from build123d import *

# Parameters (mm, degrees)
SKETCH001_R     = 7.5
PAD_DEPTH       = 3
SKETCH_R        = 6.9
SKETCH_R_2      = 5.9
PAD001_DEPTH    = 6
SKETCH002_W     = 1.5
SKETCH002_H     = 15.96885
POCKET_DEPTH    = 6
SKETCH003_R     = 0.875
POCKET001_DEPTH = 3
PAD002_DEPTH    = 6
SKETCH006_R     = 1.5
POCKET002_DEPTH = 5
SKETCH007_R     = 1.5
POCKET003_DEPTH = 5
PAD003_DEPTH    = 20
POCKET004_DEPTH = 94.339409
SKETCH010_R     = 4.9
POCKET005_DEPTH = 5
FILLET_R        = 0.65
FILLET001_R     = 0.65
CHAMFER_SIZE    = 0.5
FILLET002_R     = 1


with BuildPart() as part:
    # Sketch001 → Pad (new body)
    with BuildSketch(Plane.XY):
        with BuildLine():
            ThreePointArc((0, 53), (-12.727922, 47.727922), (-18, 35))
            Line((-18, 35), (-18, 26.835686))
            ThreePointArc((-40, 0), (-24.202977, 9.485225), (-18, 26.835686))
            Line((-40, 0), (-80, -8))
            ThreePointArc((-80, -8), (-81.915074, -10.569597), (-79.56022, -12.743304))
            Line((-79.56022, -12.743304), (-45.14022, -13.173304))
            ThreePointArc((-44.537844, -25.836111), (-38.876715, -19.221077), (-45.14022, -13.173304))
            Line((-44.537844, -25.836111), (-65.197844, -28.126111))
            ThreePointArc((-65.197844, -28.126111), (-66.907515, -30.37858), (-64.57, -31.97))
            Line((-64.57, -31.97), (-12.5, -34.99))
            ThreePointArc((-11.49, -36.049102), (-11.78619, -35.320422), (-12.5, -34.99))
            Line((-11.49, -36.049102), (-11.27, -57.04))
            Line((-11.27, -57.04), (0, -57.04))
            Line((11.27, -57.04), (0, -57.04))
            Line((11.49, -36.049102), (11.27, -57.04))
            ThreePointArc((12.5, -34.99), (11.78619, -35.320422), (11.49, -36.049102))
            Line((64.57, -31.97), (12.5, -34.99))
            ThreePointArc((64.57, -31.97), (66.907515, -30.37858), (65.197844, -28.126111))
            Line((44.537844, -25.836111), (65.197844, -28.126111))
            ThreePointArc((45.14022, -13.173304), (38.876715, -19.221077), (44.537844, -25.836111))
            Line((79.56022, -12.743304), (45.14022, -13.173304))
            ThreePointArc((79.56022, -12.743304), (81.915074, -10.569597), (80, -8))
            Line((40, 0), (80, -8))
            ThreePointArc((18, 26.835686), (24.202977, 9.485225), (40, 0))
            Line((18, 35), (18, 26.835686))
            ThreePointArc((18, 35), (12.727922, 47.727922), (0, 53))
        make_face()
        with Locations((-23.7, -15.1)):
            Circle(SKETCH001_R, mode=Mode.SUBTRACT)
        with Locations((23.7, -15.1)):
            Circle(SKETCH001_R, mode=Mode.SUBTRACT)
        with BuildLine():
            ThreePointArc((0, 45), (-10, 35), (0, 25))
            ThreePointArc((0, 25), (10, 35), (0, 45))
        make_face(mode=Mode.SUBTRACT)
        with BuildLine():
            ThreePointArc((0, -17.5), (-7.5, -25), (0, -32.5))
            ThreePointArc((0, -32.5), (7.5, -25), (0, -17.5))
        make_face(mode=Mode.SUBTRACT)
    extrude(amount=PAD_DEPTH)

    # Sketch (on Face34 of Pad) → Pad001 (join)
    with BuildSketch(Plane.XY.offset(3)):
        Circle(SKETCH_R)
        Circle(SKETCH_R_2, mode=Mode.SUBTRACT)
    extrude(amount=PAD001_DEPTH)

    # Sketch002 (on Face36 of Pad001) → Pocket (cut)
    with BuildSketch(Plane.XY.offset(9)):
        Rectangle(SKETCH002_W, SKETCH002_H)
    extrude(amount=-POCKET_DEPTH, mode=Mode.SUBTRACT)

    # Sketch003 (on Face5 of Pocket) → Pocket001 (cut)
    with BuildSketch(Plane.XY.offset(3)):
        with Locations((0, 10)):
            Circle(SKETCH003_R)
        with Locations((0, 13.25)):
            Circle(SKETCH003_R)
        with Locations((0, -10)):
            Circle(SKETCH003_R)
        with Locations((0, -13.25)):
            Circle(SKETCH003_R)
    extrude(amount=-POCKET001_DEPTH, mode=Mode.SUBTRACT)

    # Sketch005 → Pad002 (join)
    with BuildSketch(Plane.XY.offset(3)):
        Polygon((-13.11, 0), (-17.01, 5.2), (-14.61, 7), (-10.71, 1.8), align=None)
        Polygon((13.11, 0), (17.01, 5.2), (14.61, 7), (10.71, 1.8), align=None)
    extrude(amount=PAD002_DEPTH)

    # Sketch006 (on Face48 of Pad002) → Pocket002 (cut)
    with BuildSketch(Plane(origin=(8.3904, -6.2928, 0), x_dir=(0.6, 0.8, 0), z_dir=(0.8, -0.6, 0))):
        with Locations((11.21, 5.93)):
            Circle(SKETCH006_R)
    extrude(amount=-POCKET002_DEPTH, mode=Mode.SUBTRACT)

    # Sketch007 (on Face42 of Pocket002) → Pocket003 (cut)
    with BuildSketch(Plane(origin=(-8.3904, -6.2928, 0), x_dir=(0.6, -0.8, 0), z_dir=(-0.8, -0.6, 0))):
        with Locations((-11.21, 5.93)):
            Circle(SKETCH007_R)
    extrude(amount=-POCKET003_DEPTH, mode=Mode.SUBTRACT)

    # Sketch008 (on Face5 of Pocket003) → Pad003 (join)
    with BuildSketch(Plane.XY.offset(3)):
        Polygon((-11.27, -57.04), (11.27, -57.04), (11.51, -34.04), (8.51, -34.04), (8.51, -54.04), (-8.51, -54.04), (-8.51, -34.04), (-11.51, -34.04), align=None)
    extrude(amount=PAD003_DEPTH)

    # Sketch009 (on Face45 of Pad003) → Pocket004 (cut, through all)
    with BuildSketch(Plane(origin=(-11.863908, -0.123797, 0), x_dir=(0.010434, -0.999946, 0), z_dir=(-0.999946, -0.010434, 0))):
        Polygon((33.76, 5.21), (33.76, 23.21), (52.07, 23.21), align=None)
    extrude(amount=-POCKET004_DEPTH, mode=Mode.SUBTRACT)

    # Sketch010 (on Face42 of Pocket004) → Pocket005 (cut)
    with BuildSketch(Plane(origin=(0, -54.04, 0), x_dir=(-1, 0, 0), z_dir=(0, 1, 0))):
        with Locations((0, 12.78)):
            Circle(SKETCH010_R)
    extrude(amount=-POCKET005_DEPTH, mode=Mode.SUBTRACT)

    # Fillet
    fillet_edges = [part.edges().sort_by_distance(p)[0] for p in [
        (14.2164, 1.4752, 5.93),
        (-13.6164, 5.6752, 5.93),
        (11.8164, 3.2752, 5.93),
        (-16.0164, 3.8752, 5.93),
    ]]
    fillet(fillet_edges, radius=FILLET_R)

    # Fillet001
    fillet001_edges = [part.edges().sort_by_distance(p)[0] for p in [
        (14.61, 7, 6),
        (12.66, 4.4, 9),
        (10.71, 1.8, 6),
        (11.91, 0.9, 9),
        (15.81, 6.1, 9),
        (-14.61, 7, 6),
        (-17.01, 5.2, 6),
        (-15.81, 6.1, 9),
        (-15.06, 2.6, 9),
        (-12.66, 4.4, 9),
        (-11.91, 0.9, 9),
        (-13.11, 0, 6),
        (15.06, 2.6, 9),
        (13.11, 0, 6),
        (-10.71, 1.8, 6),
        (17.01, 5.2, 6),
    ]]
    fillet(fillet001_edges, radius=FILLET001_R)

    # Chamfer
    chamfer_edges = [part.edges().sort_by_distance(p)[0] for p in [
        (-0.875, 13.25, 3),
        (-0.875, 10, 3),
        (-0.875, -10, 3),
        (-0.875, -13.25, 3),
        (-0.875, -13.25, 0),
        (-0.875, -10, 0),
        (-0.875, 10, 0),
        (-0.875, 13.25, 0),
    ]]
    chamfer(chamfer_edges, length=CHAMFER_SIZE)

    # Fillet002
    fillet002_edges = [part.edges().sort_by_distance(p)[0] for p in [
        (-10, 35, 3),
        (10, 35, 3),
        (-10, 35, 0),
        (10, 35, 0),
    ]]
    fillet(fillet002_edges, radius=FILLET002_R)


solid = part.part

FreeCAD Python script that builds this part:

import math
import FreeCAD as App
import Part
import Sketcher

V = App.Vector
Q = App.Units.Quantity


def edges_at(feature, points):
    """Names of the edges that pass closest to the given points."""
    edges = feature.Shape.Edges
    near = lambda p: min(range(len(edges)), key=lambda i: edges[i].distToShape(Part.Vertex(*p))[0])
    return sorted({f"Edge{near(p) + 1}" for p in points})


def add_polygon(sketch, points):
    """Adds a closed chain of lines whose ends are joined by coincident constraints."""
    first, n = sketch.GeometryCount, len(points)
    for a, b in zip(points, points[1:] + points[:1]):
        sketch.addGeometry(Part.LineSegment(App.Vector(*a, 0), App.Vector(*b, 0)), False)
    for i in range(n):
        sketch.addConstraint(Sketcher.Constraint("Coincident", first + i, 2, first + (i + 1) % n, 1))

doc = App.newDocument("Part")
body = doc.addObject("PartDesign::Body", "Body")

# Sketch on XY plane
sketch1 = body.newObject("Sketcher::SketchObject", "Sketch")
sketch1.AttachmentSupport = (doc.getObject("XY_Plane"), [""])
sketch1.MapMode = "FlatFace"
sketch1.addGeometry(Part.ArcOfCircle(Part.Circle(V(0, 35, 0), V(0, 0, 1), 18), math.radians(90), math.radians(180)), False)
sketch1.addGeometry(Part.LineSegment(V(-18, 35, 0), V(-18, 26.8, 0)), False)
sketch1.addGeometry(Part.ArcOfCircle(Part.Circle(V(-45.4, 26.8, 0), V(0, 0, 1), 27.4), math.radians(-79), math.radians(0)), False)
sketch1.addGeometry(Part.LineSegment(V(-40, 0, 0), V(-80, -8, 0)), False)
sketch1.addGeometry(Part.ArcOfCircle(Part.Circle(V(-79.5, -10.3, 0), V(0, 0, 1), 2.4), math.radians(101), math.radians(269)), False)
sketch1.addGeometry(Part.LineSegment(V(-79.6, -12.7, 0), V(-45.1, -13.2, 0)), False)
sketch1.addGeometry(Part.ArcOfCircle(Part.Circle(V(-45.2, -19.5, 0), V(0, 0, 1), 6.4), math.radians(-84), math.radians(89)), False)
sketch1.addGeometry(Part.LineSegment(V(-44.5, -25.8, 0), V(-65.2, -28.1, 0)), False)
sketch1.addGeometry(Part.ArcOfCircle(Part.Circle(V(-65, -30.1, 0), V(0, 0, 1), 1.9), math.radians(96), math.radians(282)), False)
sketch1.addGeometry(Part.LineSegment(V(-64.6, -32, 0), V(-12.5, -35, 0)), False)
sketch1.addGeometry(Part.ArcOfCircle(Part.Circle(V(-12.6, -36.1, 0), V(0, 0, 1), 1.1), math.radians(1), math.radians(87)), False)
sketch1.addGeometry(Part.LineSegment(V(-11.5, -36, 0), V(-11.3, -57, 0)), False)
sketch1.addGeometry(Part.LineSegment(V(-11.3, -57, 0), V(11.3, -57, 0)), False)
sketch1.addGeometry(Part.LineSegment(V(11.3, -57, 0), V(11.5, -36, 0)), False)
sketch1.addGeometry(Part.ArcOfCircle(Part.Circle(V(12.6, -36.1, 0), V(0, 0, 1), 1.1), math.radians(93), math.radians(179)), False)
sketch1.addGeometry(Part.LineSegment(V(12.5, -35, 0), V(64.6, -32, 0)), False)
sketch1.addGeometry(Part.ArcOfCircle(Part.Circle(V(65, -30.1, 0), V(0, 0, 1), 1.9), math.radians(-102), math.radians(84)), False)
sketch1.addGeometry(Part.LineSegment(V(65.2, -28.1, 0), V(44.5, -25.8, 0)), False)
sketch1.addGeometry(Part.ArcOfCircle(Part.Circle(V(45.2, -19.5, 0), V(0, 0, 1), 6.4), math.radians(91), math.radians(264)), False)
sketch1.addGeometry(Part.LineSegment(V(45.1, -13.2, 0), V(79.6, -12.7, 0)), False)
sketch1.addGeometry(Part.ArcOfCircle(Part.Circle(V(79.5, -10.3, 0), V(0, 0, 1), 2.4), math.radians(-89), math.radians(79)), False)
sketch1.addGeometry(Part.LineSegment(V(80, -8, 0), V(40, 0, 0)), False)
sketch1.addGeometry(Part.ArcOfCircle(Part.Circle(V(45.4, 26.8, 0), V(0, 0, 1), 27.4), math.radians(-180), math.radians(-101)), False)
sketch1.addGeometry(Part.LineSegment(V(18, 26.8, 0), V(18, 35, 0)), False)
sketch1.addGeometry(Part.ArcOfCircle(Part.Circle(V(0, 35, 0), V(0, 0, 1), 18), math.radians(0), math.radians(90)), False)
sketch1.addGeometry(Part.Circle(V(-23.7, -15.1, 0), V(0, 0, 1), 7.5), False)
sketch1.addGeometry(Part.Circle(V(0, -25, 0), V(0, 0, 1), 7.5), False)
sketch1.addGeometry(Part.Circle(V(23.7, -15.1, 0), V(0, 0, 1), 7.5), False)
sketch1.addGeometry(Part.Circle(V(0, 35, 0), V(0, 0, 1), 10), False)
sketch1.addConstraint(Sketcher.Constraint("Tangent", 0, 2, 1, 1))
sketch1.addConstraint(Sketcher.Constraint("Tangent", 1, 2, 2, 2))
sketch1.addConstraint(Sketcher.Constraint("Tangent", 2, 1, 3, 1))
sketch1.addConstraint(Sketcher.Constraint("Tangent", 3, 2, 4, 1))
sketch1.addConstraint(Sketcher.Constraint("Tangent", 4, 2, 5, 1))
sketch1.addConstraint(Sketcher.Constraint("Tangent", 5, 2, 6, 2))
sketch1.addConstraint(Sketcher.Constraint("Coincident", 6, 1, 7, 1))
sketch1.addConstraint(Sketcher.Constraint("Tangent", 7, 2, 8, 1))
sketch1.addConstraint(Sketcher.Constraint("Coincident", 8, 2, 9, 1))
sketch1.addConstraint(Sketcher.Constraint("Tangent", 9, 2, 10, 2))
sketch1.addConstraint(Sketcher.Constraint("Tangent", 10, 1, 11, 1))
sketch1.addConstraint(Sketcher.Constraint("Coincident", 11, 2, 12, 1))
sketch1.addConstraint(Sketcher.Constraint("Coincident", 12, 2, 13, 1))
sketch1.addConstraint(Sketcher.Constraint("Tangent", 13, 2, 14, 2))
sketch1.addConstraint(Sketcher.Constraint("Tangent", 14, 1, 15, 1))
sketch1.addConstraint(Sketcher.Constraint("Coincident", 15, 2, 16, 1))
sketch1.addConstraint(Sketcher.Constraint("Tangent", 16, 2, 17, 1))
sketch1.addConstraint(Sketcher.Constraint("Coincident", 17, 2, 18, 2))
sketch1.addConstraint(Sketcher.Constraint("Tangent", 18, 1, 19, 1))
sketch1.addConstraint(Sketcher.Constraint("Tangent", 19, 2, 20, 1))
sketch1.addConstraint(Sketcher.Constraint("Tangent", 20, 2, 21, 1))
sketch1.addConstraint(Sketcher.Constraint("Tangent", 21, 2, 22, 2))
sketch1.addConstraint(Sketcher.Constraint("Tangent", 22, 1, 23, 1))
sketch1.addConstraint(Sketcher.Constraint("Tangent", 23, 2, 24, 1))
sketch1.addConstraint(Sketcher.Constraint("Tangent", 24, 2, 0, 1))
sketch1.addConstraint(Sketcher.Constraint("Vertical", 1))
sketch1.addConstraint(Sketcher.Constraint("Horizontal", 12))
sketch1.addConstraint(Sketcher.Constraint("Vertical", 23))
sketch1.addConstraint(Sketcher.Constraint("Coincident", 28, 3, 0, 3))
sketch1.addConstraint(Sketcher.Constraint("Equal", 10, 14))
sketch1.addConstraint(Sketcher.Constraint("Equal", 8, 16))
sketch1.addConstraint(Sketcher.Constraint("Equal", 6, 18))
sketch1.addConstraint(Sketcher.Constraint("Equal", 4, 20))
sketch1.addConstraint(Sketcher.Constraint("Equal", 2, 22))
sketch1.addConstraint(Sketcher.Constraint("Equal", 0, 24))
sketch1.addConstraint(Sketcher.Constraint("Equal", 25, 26))
sketch1.addConstraint(Sketcher.Constraint("Equal", 26, 27))
sketch1.addConstraint(Sketcher.Constraint("Symmetric", 2, 1, 21, 2, -1, 1))
sketch1.addConstraint(Sketcher.Constraint("Symmetric", 10, 3, 14, 3, -2))
sketch1.addConstraint(Sketcher.Constraint("Symmetric", 8, 3, 16, 3, -2))
sketch1.addConstraint(Sketcher.Constraint("Symmetric", 6, 3, 18, 3, -2))
sketch1.addConstraint(Sketcher.Constraint("Symmetric", 4, 3, 20, 3, -2))
sketch1.addConstraint(Sketcher.Constraint("Symmetric", 25, 3, 27, 3, -2))
sketch1.addConstraint(Sketcher.Constraint("PointOnObject", 0, 3, -2))
sketch1.addConstraint(Sketcher.Constraint("PointOnObject", 26, 3, -2))
sketch1.addConstraint(Sketcher.Constraint("PointOnObject", 24, 2, -2))
sketch1.addConstraint(Sketcher.Constraint("Horizontal", 10, 1, 13, 2))
sketch1.addConstraint(Sketcher.Constraint("Horizontal", 8, 2, 15, 2))
sketch1.addConstraint(Sketcher.Constraint("Horizontal", 6, 1, 17, 2))
sketch1.addConstraint(Sketcher.Constraint("Diameter", 25, Q("15 mm")))
sketch1.addConstraint(Sketcher.Constraint("Diameter", 28, Q("20 mm")))
sketch1.addConstraint(Sketcher.Constraint("Radius", 0, Q("18 mm")))
sketch1.addConstraint(Sketcher.Constraint("Radius", 6, Q("6.35 mm")))
sketch1.addConstraint(Sketcher.Constraint("Radius", 8, Q("1.95 mm")))
sketch1.addConstraint(Sketcher.Constraint("DistanceY", -1, 1, 0, 3, Q("35 mm")))
sketch1.addConstraint(Sketcher.Constraint("DistanceY", 26, 3, -1, 1, Q("25 mm")))
sketch1.addConstraint(Sketcher.Constraint("DistanceX", 2, 1, -1, 1, Q("40 mm")))
sketch1.addConstraint(Sketcher.Constraint("DistanceX", 3, 2, -1, 1, Q("80 mm")))
sketch1.addConstraint(Sketcher.Constraint("DistanceY", 3, 2, -1, 1, Q("8 mm")))
sketch1.addConstraint(Sketcher.Constraint("Radius", 4, Q("2.395 mm")))
sketch1.addConstraint(Sketcher.Constraint("DistanceX", 12, 1, 12, 2, Q("22.54 mm")))
sketch1.addConstraint(Sketcher.Constraint("DistanceX", 25, 3, -1, 1, Q("23.7 mm")))
sketch1.addConstraint(Sketcher.Constraint("DistanceY", 25, 3, -1, 1, Q("15.1 mm")))
sketch1.addConstraint(Sketcher.Constraint("DistanceX", 9, 2, -1, 1, Q("12.5 mm")))
sketch1.addConstraint(Sketcher.Constraint("DistanceX", 8, 2, -1, 1, Q("64.57 mm")))
sketch1.addConstraint(Sketcher.Constraint("DistanceY", 8, 2, -1, 1, Q("31.97 mm")))
sketch1.addConstraint(Sketcher.Constraint("DistanceY", 9, 2, -1, 1, Q("34.99 mm")))
sketch1.addConstraint(Sketcher.Constraint("DistanceX", 10, 1, -1, 1, Q("11.49 mm")))
sketch1.addConstraint(Sketcher.Constraint("DistanceY", 11, 2, -1, 1, Q("57.04 mm")))
sketch1.addConstraint(Sketcher.Constraint("DistanceX", 4, 2, 5, 2, Q("34.42 mm")))
sketch1.addConstraint(Sketcher.Constraint("DistanceY", 5, 2, 4, 2, Q("0.43 mm")))
sketch1.addConstraint(Sketcher.Constraint("DistanceX", 7, 2, 6, 1, Q("20.66 mm")))
sketch1.addConstraint(Sketcher.Constraint("DistanceY", 7, 2, 6, 1, Q("2.29 mm")))
pad1 = body.newObject("PartDesign::Pad", "Pad")
pad1.Profile = sketch1
pad1.Length = 3

# Sketch on XY plane
sketch2 = body.newObject("Sketcher::SketchObject", "Sketch001")
sketch2.AttachmentSupport = (doc.getObject("XY_Plane"), [""])
sketch2.MapMode = "FlatFace"
sketch2.AttachmentOffset = App.Placement(V(0, 0, 3), App.Rotation())
sketch2.addGeometry(Part.Circle(V(0, 0, 0), V(0, 0, 1), 7), False)
sketch2.addGeometry(Part.Circle(V(0, 0, 0), V(0, 0, 1), 6), False)
sketch2.addConstraint(Sketcher.Constraint("Coincident", 0, 3, -1, 1))
sketch2.addConstraint(Sketcher.Constraint("Coincident", 1, 3, -1, 1))
sketch2.addConstraint(Sketcher.Constraint("Diameter", 0, Q("13.8 mm")))
sketch2.addConstraint(Sketcher.Constraint("Diameter", 1, Q("11.8 mm")))
pad2 = body.newObject("PartDesign::Pad", "Pad001")
pad2.Profile = sketch2
pad2.Length = 6

# Sketch on XY plane
sketch3 = body.newObject("Sketcher::SketchObject", "Sketch002")
sketch3.AttachmentSupport = (doc.getObject("XY_Plane"), [""])
sketch3.MapMode = "FlatFace"
sketch3.AttachmentOffset = App.Placement(V(0, 0, 9), App.Rotation())
add_polygon(sketch3, [(-0.8, 8), (-0.8, -8), (0.8, -8), (0.8, 8)])  # lines 0-3
sketch3.addConstraint(Sketcher.Constraint("Vertical", 0))
sketch3.addConstraint(Sketcher.Constraint("Horizontal", 1))
sketch3.addConstraint(Sketcher.Constraint("Vertical", 2))
sketch3.addConstraint(Sketcher.Constraint("Horizontal", 3))
sketch3.addConstraint(Sketcher.Constraint("Symmetric", 0, 2, 2, 2, -1, 1))
sketch3.addConstraint(Sketcher.Constraint("DistanceX", 1, 1, 1, 2, Q("1.5 mm")))
sketch3.addConstraint(Sketcher.Constraint("DistanceY", 0, 2, 0, 1, Q("15.96885 mm")))
pocket1 = body.newObject("PartDesign::Pocket", "Pocket")
pocket1.Profile = sketch3
pocket1.Length = 6

# Sketch on XY plane
sketch4 = body.newObject("Sketcher::SketchObject", "Sketch003")
sketch4.AttachmentSupport = (doc.getObject("XY_Plane"), [""])
sketch4.MapMode = "FlatFace"
sketch4.AttachmentOffset = App.Placement(V(0, 0, 3), App.Rotation())
sketch4.addGeometry(Part.Circle(V(0, 10, 0), V(0, 0, 1), 0.9), False)
sketch4.addGeometry(Part.Circle(V(0, 13.2, 0), V(0, 0, 1), 0.9), False)
sketch4.addGeometry(Part.Circle(V(0, -10, 0), V(0, 0, 1), 0.9), False)
sketch4.addGeometry(Part.Circle(V(0, -13.2, 0), V(0, 0, 1), 0.9), False)
sketch4.addConstraint(Sketcher.Constraint("Equal", 0, 1))
sketch4.addConstraint(Sketcher.Constraint("Equal", 1, 2))
sketch4.addConstraint(Sketcher.Constraint("Equal", 2, 3))
sketch4.addConstraint(Sketcher.Constraint("Symmetric", 0, 3, 2, 3, -1, 1))
sketch4.addConstraint(Sketcher.Constraint("Symmetric", 1, 3, 3, 3, -1, 1))
sketch4.addConstraint(Sketcher.Constraint("PointOnObject", 0, 3, -2))
sketch4.addConstraint(Sketcher.Constraint("PointOnObject", 1, 3, -2))
sketch4.addConstraint(Sketcher.Constraint("Diameter", 0, Q("1.75 mm")))
sketch4.addConstraint(Sketcher.Constraint("DistanceY", -1, 1, 0, 3, Q("10 mm")))
sketch4.addConstraint(Sketcher.Constraint("DistanceY", 3, 3, 1, 3, Q("26.5 mm")))
pocket2 = body.newObject("PartDesign::Pocket", "Pocket001")
pocket2.Profile = sketch4
pocket2.Length = 3

# Sketch on XY plane
sketch5 = body.newObject("Sketcher::SketchObject", "Sketch004")
sketch5.AttachmentSupport = (doc.getObject("XY_Plane"), [""])
sketch5.MapMode = "FlatFace"
sketch5.AttachmentOffset = App.Placement(V(0, 0, 3), App.Rotation())
add_polygon(sketch5, [(-17, 5.2), (-13.1, 0), (-10.7, 1.8), (-14.6, 7)])  # lines 0-3
add_polygon(sketch5, [(13.1, 0), (17, 5.2), (14.6, 7), (10.7, 1.8)])  # lines 4-7
sketch5.addConstraint(Sketcher.Constraint("Symmetric", 0, 2, 7, 2, -1, 1))
sketch5.addConstraint(Sketcher.Constraint("Symmetric", 3, 2, 4, 2, -2))
sketch5.addConstraint(Sketcher.Constraint("Symmetric", 2, 2, 5, 2, -2))
sketch5.addConstraint(Sketcher.Constraint("Symmetric", 1, 2, 6, 2, -2))
sketch5.addConstraint(Sketcher.Constraint("PointOnObject", 0, 2, -1))
sketch5.addConstraint(Sketcher.Constraint("Perpendicular", 0, 1))
sketch5.addConstraint(Sketcher.Constraint("Perpendicular", 1, 2))
sketch5.addConstraint(Sketcher.Constraint("Perpendicular", 2, 3))
sketch5.addConstraint(Sketcher.Constraint("Distance", 1, Q("3 mm")))
sketch5.addConstraint(Sketcher.Constraint("DistanceY", -1, 1, 2, 2, Q("7 mm")))
sketch5.addConstraint(Sketcher.Constraint("Distance", 0, Q("6.5 mm")))
sketch5.addConstraint(Sketcher.Constraint("DistanceX", 0, 2, -1, 1, Q("13.11 mm")))
pad3 = body.newObject("PartDesign::Pad", "Pad002")
pad3.Profile = sketch5
pad3.Length = 6

# Sketch on an angled plane
sketch6 = body.newObject("Sketcher::SketchObject", "Sketch005")
sketch6.Placement = App.Placement(V(8.3904, -6.2928, 0), App.Rotation(V(0.6, 0.8, 0), V(0, 0, 1), V(0.8, -0.6, 0), "ZXY"))
sketch6.addGeometry(Part.Circle(V(11.2, 5.9, 0), V(0, 0, 1), 1.5), False)
sketch6.addConstraint(Sketcher.Constraint("Diameter", 0, Q("3 mm")))
sketch6.addConstraint(Sketcher.Constraint("DistanceX", -1, 1, 0, 3, Q("11.21 mm")))
sketch6.addConstraint(Sketcher.Constraint("DistanceY", -1, 1, 0, 3, Q("5.93 mm")))
pocket3 = body.newObject("PartDesign::Pocket", "Pocket002")
pocket3.Profile = sketch6
pocket3.Length = 5

# Sketch on an angled plane
sketch7 = body.newObject("Sketcher::SketchObject", "Sketch006")
sketch7.Placement = App.Placement(V(-8.3904, -6.2928, 0), App.Rotation(V(0.6, -0.8, 0), V(0, 0, 1), V(-0.8, -0.6, 0), "ZXY"))
sketch7.addGeometry(Part.Circle(V(-11.2, 5.9, 0), V(0, 0, 1), 1.5), False)
sketch7.addConstraint(Sketcher.Constraint("Diameter", 0, Q("3 mm")))
sketch7.addConstraint(Sketcher.Constraint("DistanceX", 0, 3, -1, 1, Q("11.21 mm")))
sketch7.addConstraint(Sketcher.Constraint("DistanceY", -1, 1, 0, 3, Q("5.93 mm")))
pocket4 = body.newObject("PartDesign::Pocket", "Pocket003")
pocket4.Profile = sketch7
pocket4.Length = 5

# Sketch on XY plane
sketch8 = body.newObject("Sketcher::SketchObject", "Sketch007")
sketch8.AttachmentSupport = (doc.getObject("XY_Plane"), [""])
sketch8.MapMode = "FlatFace"
sketch8.AttachmentOffset = App.Placement(V(0, 0, 3), App.Rotation())
add_polygon(sketch8, [(-11.3, -57), (11.3, -57), (11.5, -34), (8.5, -34), (8.5, -54), (-8.5, -54), (-8.5, -34), (-11.5, -34)])  # lines 0-7
sketch8.addConstraint(Sketcher.Constraint("Horizontal", 0))
sketch8.addConstraint(Sketcher.Constraint("Horizontal", 2))
sketch8.addConstraint(Sketcher.Constraint("Vertical", 3))
sketch8.addConstraint(Sketcher.Constraint("Horizontal", 4))
sketch8.addConstraint(Sketcher.Constraint("Vertical", 5))
sketch8.addConstraint(Sketcher.Constraint("Horizontal", 6))
sketch8.addConstraint(Sketcher.Constraint("Symmetric", 2, 2, 5, 2, -2))
sketch8.addConstraint(Sketcher.Constraint("Equal", 2, 6))
sketch8.addConstraint(Sketcher.Constraint("Equal", 1, 7))
sketch8.addConstraint(Sketcher.Constraint("DistanceX", 2, 2, 2, 1, Q("3 mm")))
sketch8.addConstraint(Sketcher.Constraint("DistanceY", 3, 2, 3, 1, Q("20 mm")))
sketch8.addConstraint(Sketcher.Constraint("DistanceY", 0, 2, 1, 2, Q("23 mm")))
sketch8.addConstraint(Sketcher.Constraint("DistanceX", 0, 1, 0, 2, Q("22.54 mm")))
sketch8.addConstraint(Sketcher.Constraint("DistanceX", 4, 2, 4, 1, Q("17.02 mm")))
sketch8.addConstraint(Sketcher.Constraint("DistanceY", 0, 2, -1, 1, Q("57.04 mm")))
pad4 = body.newObject("PartDesign::Pad", "Pad003")
pad4.Profile = sketch8
pad4.Length = 20

# Sketch on an angled plane
sketch9 = body.newObject("Sketcher::SketchObject", "Sketch008")
sketch9.Placement = App.Placement(V(-11.863908, -0.123797, 0), App.Rotation(V(0.010433995, -0.999945564, 0), V(0, 0, 0.999999999), V(-0.999945564, -0.010433995, 0), "ZXY"))
add_polygon(sketch9, [(34, 23), (34, 5), (52, 23)])  # lines 0-2
sketch9.addConstraint(Sketcher.Constraint("Vertical", 0))
sketch9.addConstraint(Sketcher.Constraint("Horizontal", 2))
sketch9.addConstraint(Sketcher.Constraint("DistanceY", 0, 2, 0, 1, Q("18 mm")))
sketch9.addConstraint(Sketcher.Constraint("DistanceX", 2, 2, 2, 1, Q("18.31 mm")))
sketch9.addConstraint(Sketcher.Constraint("DistanceX", -1, 1, 0, 2, Q("33.76 mm")))
sketch9.addConstraint(Sketcher.Constraint("DistanceY", -1, 1, 0, 2, Q("5.21 mm")))
pocket5 = body.newObject("PartDesign::Pocket", "Pocket004")
pocket5.Profile = sketch9
pocket5.Type = "ThroughAll"

# Sketch on XZ plane
sketch10 = body.newObject("Sketcher::SketchObject", "Sketch009")
sketch10.AttachmentSupport = (doc.getObject("XZ_Plane"), [""])
sketch10.MapMode = "FlatFace"
sketch10.AttachmentOffset = App.Placement(V(0, 0, 54.04), App.Rotation())
sketch10.addGeometry(Part.Circle(V(0, 12.8, 0), V(0, 0, 1), 4.9), False)
sketch10.addConstraint(Sketcher.Constraint("PointOnObject", 0, 3, -2))
sketch10.addConstraint(Sketcher.Constraint("Diameter", 0, Q("9.8 mm")))
sketch10.addConstraint(Sketcher.Constraint("DistanceY", -1, 1, 0, 3, Q("12.78 mm")))
pocket6 = body.newObject("PartDesign::Pocket", "Pocket005")
pocket6.Profile = sketch10
pocket6.Length = 5
pocket6.Reversed = True
doc.recompute()

fillet = body.newObject("PartDesign::Fillet", "Fillet")
fillet.Base = (pocket6, edges_at(pocket6, [
    (14.216, 1.475, 5.93),
    (-13.616, 5.675, 5.93),
    (11.816, 3.275, 5.93),
    (-16.016, 3.875, 5.93),
]))
fillet.Radius = 0.65
doc.recompute()

fillet2 = body.newObject("PartDesign::Fillet", "Fillet001")
fillet2.Base = (fillet, edges_at(fillet, [
    (14.61, 7, 6),
    (12.66, 4.4, 9),
    (10.71, 1.8, 6),
    (11.91, 0.9, 9),
    (15.81, 6.1, 9),
    (-14.61, 7, 6),
    (-17.01, 5.2, 6),
    (-15.81, 6.1, 9),
    (-15.06, 2.6, 9),
    (-12.66, 4.4, 9),
    (-11.91, 0.9, 9),
    (-13.11, 0, 6),
    (15.06, 2.6, 9),
    (13.11, 0, 6),
    (-10.71, 1.8, 6),
    (17.01, 5.2, 6),
]))
fillet2.Radius = 0.65
doc.recompute()

chamfer = body.newObject("PartDesign::Chamfer", "Chamfer")
chamfer.Base = (fillet2, edges_at(fillet2, [
    (-0.875, 13.25, 3),
    (-0.875, 10, 3),
    (-0.875, -10, 3),
    (-0.875, -13.25, 3),
    (-0.875, -13.25, 0),
    (-0.875, -10, 0),
    (-0.875, 10, 0),
    (-0.875, 13.25, 0),
]))
chamfer.Size = 0.5
doc.recompute()

fillet3 = body.newObject("PartDesign::Fillet", "Fillet002")
fillet3.Base = (chamfer, edges_at(chamfer, [
    (0, 45, 3),
    (0, 45, 3),
    (0, 45, 0),
    (0, 45, 0),
]))
fillet3.Radius = 1

doc.recompute()
